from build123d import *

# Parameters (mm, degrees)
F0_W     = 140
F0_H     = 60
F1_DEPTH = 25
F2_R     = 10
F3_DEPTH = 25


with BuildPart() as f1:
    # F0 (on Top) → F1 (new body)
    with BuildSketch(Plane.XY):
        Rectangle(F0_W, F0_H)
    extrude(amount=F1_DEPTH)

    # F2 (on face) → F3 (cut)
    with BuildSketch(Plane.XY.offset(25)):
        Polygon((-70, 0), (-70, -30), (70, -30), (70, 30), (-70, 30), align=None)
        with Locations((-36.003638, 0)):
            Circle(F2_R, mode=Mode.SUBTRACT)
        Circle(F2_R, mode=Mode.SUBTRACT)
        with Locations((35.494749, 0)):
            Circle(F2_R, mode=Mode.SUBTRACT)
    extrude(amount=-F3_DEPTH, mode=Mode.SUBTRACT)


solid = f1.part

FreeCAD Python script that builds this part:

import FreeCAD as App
import Part
import Sketcher
from FreeCAD import Vector
Q = App.Units.Quantity

doc = App.newDocument("Part")
body = doc.addObject("PartDesign::Body", "Body")
body.AllowCompound = True

# Sketch on XY plane
sketch1 = body.newObject("Sketcher::SketchObject", "Sketch")
sketch1.AttachmentSupport = (doc.getObject("XY_Plane"), [""])
sketch1.MapMode = "FlatFace"
sketch1.addGeometry([
    Part.LineSegment(Vector(-70, 30, 0), Vector(-70, -30, 0)),
    Part.LineSegment(Vector(-70, -30, 0), Vector(70, -30, 0)),
    Part.LineSegment(Vector(70, -30, 0), Vector(70, 30, 0)),
    Part.LineSegment(Vector(70, 30, 0), Vector(-70, 30, 0)),
], False)
sketch1.addConstraint([
    Sketcher.Constraint("Coincident", 0, 2, 1, 1),
    Sketcher.Constraint("Coincident", 1, 2, 2, 1),
    Sketcher.Constraint("Coincident", 2, 2, 3, 1),
    Sketcher.Constraint("Coincident", 3, 2, 0, 1),
    Sketcher.Constraint("Vertical", 0),
    Sketcher.Constraint("Horizontal", 1),
    Sketcher.Constraint("Vertical", 2),
    Sketcher.Constraint("Horizontal", 3),
    Sketcher.Constraint("Symmetric", 0, 2, 2, 2, -1, 1),
    Sketcher.Constraint("DistanceX", 1, 1, 1, 2, Q("140 mm")),
    Sketcher.Constraint("DistanceY", 0, 2, 0, 1, Q("60 mm")),
])
pad1 = body.newObject("PartDesign::Pad", "Pad")
pad1.Profile = sketch1
pad1.Length = 25

# Sketch on XY plane
sketch2 = body.newObject("Sketcher::SketchObject", "Sketch001")
sketch2.AttachmentSupport = (doc.getObject("XY_Plane"), [""])
sketch2.MapMode = "FlatFace"
sketch2.AttachmentOffset = App.Placement(Vector(0, 0, 25), App.Rotation())
sketch2.addGeometry([
    Part.LineSegment(Vector(-70, -30, 0), Vector(70, -30, 0)),  # 0
    Part.LineSegment(Vector(70, -30, 0), Vector(70, 30, 0)),  # 1
    Part.LineSegment(Vector(70, 30, 0), Vector(-70, 30, 0)),  # 2
    Part.LineSegment(Vector(-70, 30, 0), Vector(-70, -30, 0)),  # 3
    Part.Circle(Vector(-36, 0, 0), Vector(0, 0, 1), 10),  # 4
    Part.Circle(Vector(0, 0, 0), Vector(0, 0, 1), 10),  # 5
    Part.Circle(Vector(35, 0, 0), Vector(0, 0, 1), 10),  # 6
], False)
sketch2.addConstraint([
    Sketcher.Constraint("Coincident", 0, 2, 1, 1),
    Sketcher.Constraint("Coincident", 1, 2, 2, 1),
    Sketcher.Constraint("Coincident", 2, 2, 3, 1),
    Sketcher.Constraint("Coincident", 3, 2, 0, 1),
    Sketcher.Constraint("Horizontal", 0),
    Sketcher.Constraint("Vertical", 1),
    Sketcher.Constraint("Horizontal", 2),
    Sketcher.Constraint("Vertical", 3),
    Sketcher.Constraint("Coincident", 5, 3, -1, 1),
    Sketcher.Constraint("Equal", 4, 5),
    Sketcher.Constraint("Equal", 5, 6),
    Sketcher.Constraint("Symmetric", 0, 2, 2, 2, -1, 1),
    Sketcher.Constraint("PointOnObject", 4, 3, -1),
    Sketcher.Constraint("PointOnObject", 6, 3, -1),
    Sketcher.Constraint("Diameter", 4, Q("20 mm")),
    Sketcher.Constraint("DistanceX", 0, 1, 0, 2, Q("140 mm")),
    Sketcher.Constraint("DistanceY", 1, 1, 1, 2, Q("60 mm")),
    Sketcher.Constraint("DistanceX", 4, 3, -1, 1, Q("36.003638 mm")),
    Sketcher.Constraint("DistanceX", -1, 1, 6, 3, Q("35.494749 mm")),
])
pocket1 = body.newObject("PartDesign::Pocket", "Pocket")
pocket1.Profile = sketch2
pocket1.Length = 25

doc.recompute()
